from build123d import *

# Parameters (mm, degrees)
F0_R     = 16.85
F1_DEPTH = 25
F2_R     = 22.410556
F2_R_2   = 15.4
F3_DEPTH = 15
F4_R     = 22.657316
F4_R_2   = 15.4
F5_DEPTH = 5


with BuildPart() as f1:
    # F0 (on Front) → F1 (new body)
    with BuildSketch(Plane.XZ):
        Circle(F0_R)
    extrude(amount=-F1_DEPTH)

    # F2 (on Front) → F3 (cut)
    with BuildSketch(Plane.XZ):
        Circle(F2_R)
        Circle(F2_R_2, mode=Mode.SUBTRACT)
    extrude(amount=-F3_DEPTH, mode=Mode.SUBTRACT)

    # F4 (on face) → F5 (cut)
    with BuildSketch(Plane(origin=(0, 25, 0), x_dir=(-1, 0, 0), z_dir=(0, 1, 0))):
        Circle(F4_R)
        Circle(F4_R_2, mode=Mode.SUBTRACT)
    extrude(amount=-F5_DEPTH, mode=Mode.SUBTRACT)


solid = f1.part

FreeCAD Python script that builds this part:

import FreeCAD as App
import Part
import Sketcher
from FreeCAD import Vector

doc = App.newDocument("Part")
body = doc.addObject("PartDesign::Body", "Body")

# Sketch on XZ plane
sketch1 = body.newObject("Sketcher::SketchObject", "Sketch")
sketch1.AttachmentSupport = (doc.getObject("XZ_Plane"), [""])
sketch1.MapMode = "FlatFace"
sketch1.addGeometry(Part.Circle(Vector(0, 0, 0), Vector(0, 0, 1), 17), False)
sketch1.addConstraint(Sketcher.Constraint("Coincident", 0, 3, -1, 1))
sketch1.addConstraint(Sketcher.Constraint("Diameter", 0, 33.7))
pad1 = body.newObject("PartDesign::Pad", "Pad")
pad1.Profile = sketch1
pad1.Length = 25
pad1.Reversed = True

# Sketch on XZ plane
sketch2 = body.newObject("Sketcher::SketchObject", "Sketch001")
sketch2.AttachmentSupport = (doc.getObject("XZ_Plane"), [""])
sketch2.MapMode = "FlatFace"
sketch2.addGeometry(Part.Circle(Vector(0, 0, 0), Vector(0, 0, 1), 22), False)
sketch2.addGeometry(Part.Circle(Vector(0, 0, 0), Vector(0, 0, 1), 15), False)
sketch2.addConstraint(Sketcher.Constraint("Coincident", 0, 3, -1, 1))
sketch2.addConstraint(Sketcher.Constraint("Coincident", 1, 3, -1, 1))
sketch2.addConstraint(Sketcher.Constraint("Diameter", 1, 30.8))
sketch2.addConstraint(Sketcher.Constraint("Diameter", 0, 44.821112))
pocket1 = body.newObject("PartDesign::Pocket", "Pocket")
pocket1.Profile = sketch2
pocket1.Length = 15

# Sketch on XZ plane
sketch3 = body.newObject("Sketcher::SketchObject", "Sketch002")
sketch3.AttachmentSupport = (doc.getObject("XZ_Plane"), [""])
sketch3.MapMode = "FlatFace"
sketch3.AttachmentOffset = App.Placement(Vector(0, 0, -25), App.Rotation())
sketch3.addGeometry(Part.Circle(Vector(0, 0, 0), Vector(0, 0, 1), 23), False)
sketch3.addGeometry(Part.Circle(Vector(0, 0, 0), Vector(0, 0, 1), 15), False)
sketch3.addConstraint(Sketcher.Constraint("Coincident", 0, 3, -1, 1))
sketch3.addConstraint(Sketcher.Constraint("Coincident", 1, 3, -1, 1))
sketch3.addConstraint(Sketcher.Constraint("Diameter", 1, 30.8))
sketch3.addConstraint(Sketcher.Constraint("Diameter", 0, 45.314632))
pocket2 = body.newObject("PartDesign::Pocket", "Pocket001")
pocket2.Profile = sketch3
pocket2.Length = 5
pocket2.Reversed = True

doc.recompute()
